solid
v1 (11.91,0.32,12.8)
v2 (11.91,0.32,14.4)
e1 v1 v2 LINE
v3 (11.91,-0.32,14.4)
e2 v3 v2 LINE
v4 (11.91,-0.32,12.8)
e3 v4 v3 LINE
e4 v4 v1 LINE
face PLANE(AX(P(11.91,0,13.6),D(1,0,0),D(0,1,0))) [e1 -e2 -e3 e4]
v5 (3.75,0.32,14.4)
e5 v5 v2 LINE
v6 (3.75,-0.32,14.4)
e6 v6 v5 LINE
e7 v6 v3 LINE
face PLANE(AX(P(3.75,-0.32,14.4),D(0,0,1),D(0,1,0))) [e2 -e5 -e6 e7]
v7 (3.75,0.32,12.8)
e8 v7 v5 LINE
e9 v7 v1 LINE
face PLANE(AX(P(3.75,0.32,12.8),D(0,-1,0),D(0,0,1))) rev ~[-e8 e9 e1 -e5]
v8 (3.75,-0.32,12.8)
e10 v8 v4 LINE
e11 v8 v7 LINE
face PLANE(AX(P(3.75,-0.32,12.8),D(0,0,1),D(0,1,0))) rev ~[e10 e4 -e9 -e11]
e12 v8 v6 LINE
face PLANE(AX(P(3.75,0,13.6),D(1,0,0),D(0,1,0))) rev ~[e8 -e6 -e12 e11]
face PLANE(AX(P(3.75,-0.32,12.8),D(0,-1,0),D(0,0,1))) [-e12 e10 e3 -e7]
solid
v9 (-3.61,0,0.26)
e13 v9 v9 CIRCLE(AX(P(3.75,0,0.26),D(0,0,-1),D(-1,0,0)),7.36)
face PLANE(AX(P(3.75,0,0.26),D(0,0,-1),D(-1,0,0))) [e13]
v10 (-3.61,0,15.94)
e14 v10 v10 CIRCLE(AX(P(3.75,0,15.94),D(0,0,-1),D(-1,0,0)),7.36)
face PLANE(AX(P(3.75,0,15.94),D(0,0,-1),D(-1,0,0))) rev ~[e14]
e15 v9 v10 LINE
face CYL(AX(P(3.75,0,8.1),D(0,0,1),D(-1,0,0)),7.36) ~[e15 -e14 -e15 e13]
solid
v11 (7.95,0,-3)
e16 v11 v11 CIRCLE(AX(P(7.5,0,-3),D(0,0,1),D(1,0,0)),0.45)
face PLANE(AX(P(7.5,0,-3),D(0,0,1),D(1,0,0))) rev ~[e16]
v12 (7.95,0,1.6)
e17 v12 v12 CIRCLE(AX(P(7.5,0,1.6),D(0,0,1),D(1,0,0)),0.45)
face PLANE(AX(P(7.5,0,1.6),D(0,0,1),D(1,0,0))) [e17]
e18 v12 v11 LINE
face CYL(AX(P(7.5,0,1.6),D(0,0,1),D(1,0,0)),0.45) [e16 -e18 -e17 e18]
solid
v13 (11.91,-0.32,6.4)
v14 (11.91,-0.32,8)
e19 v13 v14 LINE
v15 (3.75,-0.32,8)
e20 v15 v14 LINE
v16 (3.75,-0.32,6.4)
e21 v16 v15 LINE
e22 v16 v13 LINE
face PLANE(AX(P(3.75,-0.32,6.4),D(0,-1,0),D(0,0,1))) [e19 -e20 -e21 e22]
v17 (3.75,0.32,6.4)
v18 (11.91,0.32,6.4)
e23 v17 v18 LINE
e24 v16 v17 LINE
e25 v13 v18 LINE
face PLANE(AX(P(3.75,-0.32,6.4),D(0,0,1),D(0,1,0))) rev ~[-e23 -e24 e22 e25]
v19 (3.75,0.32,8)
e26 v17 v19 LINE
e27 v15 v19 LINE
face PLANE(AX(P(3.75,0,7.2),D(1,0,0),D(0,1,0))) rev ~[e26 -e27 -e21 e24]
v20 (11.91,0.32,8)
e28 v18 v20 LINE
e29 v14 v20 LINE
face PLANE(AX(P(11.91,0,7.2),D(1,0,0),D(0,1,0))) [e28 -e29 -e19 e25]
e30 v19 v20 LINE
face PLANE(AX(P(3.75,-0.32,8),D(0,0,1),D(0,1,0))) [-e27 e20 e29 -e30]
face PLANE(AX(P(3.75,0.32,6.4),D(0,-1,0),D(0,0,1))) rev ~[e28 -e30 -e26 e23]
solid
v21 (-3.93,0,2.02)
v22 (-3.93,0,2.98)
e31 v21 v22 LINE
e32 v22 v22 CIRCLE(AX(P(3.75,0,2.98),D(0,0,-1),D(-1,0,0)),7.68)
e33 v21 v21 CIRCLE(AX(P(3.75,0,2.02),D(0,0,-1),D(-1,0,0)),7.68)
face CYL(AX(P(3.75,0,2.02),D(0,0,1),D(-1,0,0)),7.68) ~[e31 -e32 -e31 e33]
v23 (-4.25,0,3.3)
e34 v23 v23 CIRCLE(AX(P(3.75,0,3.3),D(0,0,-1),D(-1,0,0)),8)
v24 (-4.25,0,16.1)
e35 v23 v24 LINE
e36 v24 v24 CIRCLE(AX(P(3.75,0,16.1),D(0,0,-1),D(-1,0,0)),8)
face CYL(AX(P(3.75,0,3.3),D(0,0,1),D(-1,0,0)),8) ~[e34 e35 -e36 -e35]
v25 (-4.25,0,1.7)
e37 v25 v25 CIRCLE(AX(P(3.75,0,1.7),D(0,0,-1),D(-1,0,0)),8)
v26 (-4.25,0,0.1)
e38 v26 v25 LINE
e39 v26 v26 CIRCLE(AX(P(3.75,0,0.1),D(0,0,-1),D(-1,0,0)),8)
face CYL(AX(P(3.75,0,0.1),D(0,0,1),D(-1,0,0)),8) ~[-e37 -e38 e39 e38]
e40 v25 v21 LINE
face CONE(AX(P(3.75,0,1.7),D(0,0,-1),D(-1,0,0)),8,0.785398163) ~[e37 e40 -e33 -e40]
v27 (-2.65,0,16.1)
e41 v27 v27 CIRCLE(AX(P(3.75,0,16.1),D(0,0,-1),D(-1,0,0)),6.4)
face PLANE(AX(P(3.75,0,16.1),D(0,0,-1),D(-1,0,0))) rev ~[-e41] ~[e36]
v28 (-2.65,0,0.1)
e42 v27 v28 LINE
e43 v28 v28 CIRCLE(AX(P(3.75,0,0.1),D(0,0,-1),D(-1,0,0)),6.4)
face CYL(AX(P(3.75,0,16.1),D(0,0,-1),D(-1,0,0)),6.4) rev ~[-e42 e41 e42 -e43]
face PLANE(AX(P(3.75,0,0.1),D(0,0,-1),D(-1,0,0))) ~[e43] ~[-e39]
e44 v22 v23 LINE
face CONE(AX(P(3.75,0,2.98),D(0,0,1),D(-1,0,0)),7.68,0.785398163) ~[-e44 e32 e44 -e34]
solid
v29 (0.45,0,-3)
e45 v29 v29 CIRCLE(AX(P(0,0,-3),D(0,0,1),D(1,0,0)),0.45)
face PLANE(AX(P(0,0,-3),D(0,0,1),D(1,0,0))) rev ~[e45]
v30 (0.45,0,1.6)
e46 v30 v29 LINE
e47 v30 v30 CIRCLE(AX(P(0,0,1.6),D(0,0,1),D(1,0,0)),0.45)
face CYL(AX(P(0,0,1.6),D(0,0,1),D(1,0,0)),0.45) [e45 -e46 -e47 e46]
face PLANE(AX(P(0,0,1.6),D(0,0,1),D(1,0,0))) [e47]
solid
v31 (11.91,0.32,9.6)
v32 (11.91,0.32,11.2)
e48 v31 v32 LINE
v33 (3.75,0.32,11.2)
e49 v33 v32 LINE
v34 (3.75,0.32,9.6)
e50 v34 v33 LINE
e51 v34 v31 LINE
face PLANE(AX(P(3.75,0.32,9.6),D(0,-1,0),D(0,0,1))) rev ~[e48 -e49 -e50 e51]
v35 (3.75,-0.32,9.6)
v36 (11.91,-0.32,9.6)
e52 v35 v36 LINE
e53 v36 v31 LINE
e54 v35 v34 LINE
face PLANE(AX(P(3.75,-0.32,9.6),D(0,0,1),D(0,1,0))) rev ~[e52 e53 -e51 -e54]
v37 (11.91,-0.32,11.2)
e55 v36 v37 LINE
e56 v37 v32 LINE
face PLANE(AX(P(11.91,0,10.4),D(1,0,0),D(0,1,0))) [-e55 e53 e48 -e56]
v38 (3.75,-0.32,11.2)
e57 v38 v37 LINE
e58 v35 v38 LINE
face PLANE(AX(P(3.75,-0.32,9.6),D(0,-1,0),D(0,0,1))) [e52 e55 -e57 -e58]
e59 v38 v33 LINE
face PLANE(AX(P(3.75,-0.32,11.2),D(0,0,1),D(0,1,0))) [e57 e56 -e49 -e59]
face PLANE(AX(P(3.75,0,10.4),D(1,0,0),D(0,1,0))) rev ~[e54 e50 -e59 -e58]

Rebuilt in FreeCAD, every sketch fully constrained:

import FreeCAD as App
import Part
import Sketcher
from FreeCAD import Vector
Q = App.Units.Quantity

doc = App.newDocument("Part")
body = doc.addObject("PartDesign::Body", "Body")

# Sketch on XZ plane
sketch1 = body.newObject("Sketcher::SketchObject", "Sketch")
sketch1.AttachmentSupport = (doc.getObject("XZ_Plane"), [""])
sketch1.MapMode = "FlatFace"
sketch1.addGeometry([
    Part.LineSegment(Vector(-4.25, 1.7, 0), Vector(-4.25, 0.1, 0)),  # 0
    Part.LineSegment(Vector(-4.25, 0.1, 0), Vector(-2.65, 0.1, 0)),  # 1
    Part.LineSegment(Vector(-2.65, 0.1, 0), Vector(-2.65, 16.1, 0)),  # 2
    Part.LineSegment(Vector(-2.65, 16.1, 0), Vector(-4.25, 16.1, 0)),  # 3
    Part.LineSegment(Vector(-4.25, 16.1, 0), Vector(-4.25, 3.3, 0)),  # 4
    Part.LineSegment(Vector(-4.25, 3.3, 0), Vector(-3.93, 2.98, 0)),  # 5
    Part.LineSegment(Vector(-3.93, 2.98, 0), Vector(-3.93, 2.02, 0)),  # 6
    Part.LineSegment(Vector(-3.93, 2.02, 0), Vector(-4.25, 1.7, 0)),  # 7
], False)
sketch1.addGeometry(Part.LineSegment(Vector(3.75, 16.1, 0), Vector(3.75, 0.1, 0)), True)  # axis
sketch1.addConstraint([
    Sketcher.Constraint("Coincident", 0, 2, 1, 1),
    Sketcher.Constraint("Coincident", 1, 2, 2, 1),
    Sketcher.Constraint("Coincident", 2, 2, 3, 1),
    Sketcher.Constraint("Coincident", 3, 2, 4, 1),
    Sketcher.Constraint("Coincident", 4, 2, 5, 1),
    Sketcher.Constraint("Coincident", 5, 2, 6, 1),
    Sketcher.Constraint("Coincident", 6, 2, 7, 1),
    Sketcher.Constraint("Coincident", 7, 2, 0, 1),
    Sketcher.Constraint("Vertical", 0),
    Sketcher.Constraint("Horizontal", 1),
    Sketcher.Constraint("Vertical", 2),
    Sketcher.Constraint("Horizontal", 3),
    Sketcher.Constraint("Vertical", 4),
    Sketcher.Constraint("Vertical", 6),
    Sketcher.Constraint("Vertical", 8),
    Sketcher.Constraint("Perpendicular", 5, 7),
    Sketcher.Constraint("Horizontal", 3, 2, 8, 1),
    Sketcher.Constraint("Horizontal", 1, 2, 8, 2),
    Sketcher.Constraint("Vertical", 0, 2, 3, 2),
    Sketcher.Constraint("Equal", 3, 0),
    Sketcher.Constraint("Equal", 5, 7),
    Sketcher.Constraint("DistanceY", 2, 1, 2, 2, Q("16 mm")),
    Sketcher.Constraint("DistanceX", 1, 1, 1, 2, Q("1.6 mm")),
    Sketcher.Constraint("DistanceY", 4, 2, 4, 1, Q("12.8 mm")),
    Sketcher.Constraint("DistanceX", 3, 2, 8, 1, Q("8 mm")),
    Sketcher.Constraint("DistanceY", 6, 2, 6, 1, Q("0.96 mm")),
    Sketcher.Constraint("DistanceY", -1, 1, 0, 2, Q("0.1 mm")),
    Sketcher.Constraint("DistanceX", 0, 2, -1, 1, Q("4.25 mm")),
])
revolution = body.newObject("PartDesign::Revolution", "Revolution")
revolution.Profile = sketch1
revolution.ReferenceAxis = (sketch1, ["Axis0"])
revolution.Angle = 360
body2 = doc.addObject("PartDesign::Body", "Body001")

# Sketch on XZ plane
sketch2 = body2.newObject("Sketcher::SketchObject", "Sketch001")
sketch2.AttachmentSupport = (doc.getObject("XZ_Plane001"), [""])
sketch2.MapMode = "FlatFace"
sketch2.addGeometry([
    Part.LineSegment(Vector(-4, 16, 0), Vector(-4, 0, 0)),
    Part.LineSegment(Vector(-4, 0, 0), Vector(4, 0, 0)),
    Part.LineSegment(Vector(4, 0, 0), Vector(4, 16, 0)),
    Part.LineSegment(Vector(4, 16, 0), Vector(-4, 16, 0)),
], False)
sketch2.addGeometry(Part.LineSegment(Vector(4, 16, 0), Vector(4, 0, 0)), True)  # axis
sketch2.addConstraint([
    Sketcher.Constraint("Coincident", 0, 2, 1, 1),
    Sketcher.Constraint("Coincident", 1, 2, 2, 1),
    Sketcher.Constraint("Coincident", 2, 2, 3, 1),
    Sketcher.Constraint("Coincident", 3, 2, 0, 1),
    Sketcher.Constraint("Vertical", 0),
    Sketcher.Constraint("Horizontal", 1),
    Sketcher.Constraint("Vertical", 2),
    Sketcher.Constraint("Horizontal", 3),
    Sketcher.Constraint("Vertical", 4),
    Sketcher.Constraint("Coincident", 4, 1, 2, 2),
    Sketcher.Constraint("Horizontal", 0, 2, 4, 2),
    Sketcher.Constraint("DistanceX", 1, 1, 1, 2, Q("7.36 mm")),
    Sketcher.Constraint("DistanceY", 0, 2, 0, 1, Q("15.68 mm")),
    Sketcher.Constraint("DistanceX", 0, 2, -1, 1, Q("3.61 mm")),
    Sketcher.Constraint("DistanceY", -1, 1, 0, 2, Q("0.26 mm")),
])
revolution2 = body2.newObject("PartDesign::Revolution", "Revolution001")
revolution2.Profile = sketch2
revolution2.ReferenceAxis = (sketch2, ["Axis0"])
revolution2.Angle = 360
body3 = doc.addObject("PartDesign::Body", "Body002")
body3.AllowCompound = True

# Sketch on XY plane
sketch3 = body3.newObject("Sketcher::SketchObject", "Sketch002")
sketch3.AttachmentSupport = (doc.getObject("XY_Plane002"), [""])
sketch3.MapMode = "FlatFace"
sketch3.AttachmentOffset = App.Placement(Vector(0, 0, 1.6), App.Rotation())
sketch3.addGeometry([
    Part.Circle(Vector(0, 0, 0), Vector(0, 0, 1), 0.45),
    Part.Circle(Vector(7.5, 0, 0), Vector(0, 0, 1), 0.45),
], False)
sketch3.addConstraint([
    Sketcher.Constraint("Coincident", 0, 3, -1, 1),
    Sketcher.Constraint("Equal", 0, 1),
    Sketcher.Constraint("PointOnObject", 1, 3, -1),
    Sketcher.Constraint("Diameter", 0, Q("0.9 mm")),
    Sketcher.Constraint("DistanceX", -1, 1, 1, 3, Q("7.5 mm")),
])
pad1 = body3.newObject("PartDesign::Pad", "Pad")
pad1.Profile = sketch3
pad1.Length = 4.6
pad1.Reversed = True
body4 = doc.addObject("PartDesign::Body", "Body003")
body4.AllowCompound = True

# Sketch on YZ plane
sketch4 = body4.newObject("Sketcher::SketchObject", "Sketch003")
sketch4.AttachmentSupport = (doc.getObject("YZ_Plane003"), [""])
sketch4.MapMode = "FlatFace"
sketch4.AttachmentOffset = App.Placement(Vector(0, 0, 3.75), App.Rotation())
sketch4.addGeometry([
    Part.LineSegment(Vector(-0.3, 8, 0), Vector(-0.3, 6.4, 0)),  # 0
    Part.LineSegment(Vector(-0.3, 6.4, 0), Vector(0.3, 6.4, 0)),  # 1
    Part.LineSegment(Vector(0.3, 6.4, 0), Vector(0.3, 8, 0)),  # 2
    Part.LineSegment(Vector(0.3, 8, 0), Vector(-0.3, 8, 0)),  # 3
    Part.LineSegment(Vector(-0.3, 11.2, 0), Vector(-0.3, 9.6, 0)),  # 4
    Part.LineSegment(Vector(-0.3, 9.6, 0), Vector(0.3, 9.6, 0)),  # 5
    Part.LineSegment(Vector(0.3, 9.6, 0), Vector(0.3, 11.2, 0)),  # 6
    Part.LineSegment(Vector(0.3, 11.2, 0), Vector(-0.3, 11.2, 0)),  # 7
    Part.LineSegment(Vector(-0.3, 14.4, 0), Vector(-0.3, 12.8, 0)),  # 8
    Part.LineSegment(Vector(-0.3, 12.8, 0), Vector(0.3, 12.8, 0)),  # 9
    Part.LineSegment(Vector(0.3, 12.8, 0), Vector(0.3, 14.4, 0)),  # 10
    Part.LineSegment(Vector(0.3, 14.4, 0), Vector(-0.3, 14.4, 0)),  # 11
], False)
sketch4.addConstraint([
    Sketcher.Constraint("Coincident", 0, 2, 1, 1),
    Sketcher.Constraint("Coincident", 1, 2, 2, 1),
    Sketcher.Constraint("Coincident", 2, 2, 3, 1),
    Sketcher.Constraint("Coincident", 3, 2, 0, 1),
    Sketcher.Constraint("Coincident", 4, 2, 5, 1),
    Sketcher.Constraint("Coincident", 5, 2, 6, 1),
    Sketcher.Constraint("Coincident", 6, 2, 7, 1),
    Sketcher.Constraint("Coincident", 7, 2, 4, 1),
    Sketcher.Constraint("Coincident", 8, 2, 9, 1),
    Sketcher.Constraint("Coincident", 9, 2, 10, 1),
    Sketcher.Constraint("Coincident", 10, 2, 11, 1),
    Sketcher.Constraint("Coincident", 11, 2, 8, 1),
    Sketcher.Constraint("Vertical", 0),
    Sketcher.Constraint("Horizontal", 1),
    Sketcher.Constraint("Vertical", 2),
    Sketcher.Constraint("Horizontal", 3),
    Sketcher.Constraint("Vertical", 4),
    Sketcher.Constraint("Horizontal", 5),
    Sketcher.Constraint("Vertical", 6),
    Sketcher.Constraint("Horizontal", 7),
    Sketcher.Constraint("Vertical", 8),
    Sketcher.Constraint("Horizontal", 9),
    Sketcher.Constraint("Vertical", 10),
    Sketcher.Constraint("Horizontal", 11),
    Sketcher.Constraint("Vertical", 3, 2, 4, 2),
    Sketcher.Constraint("Vertical", 2, 2, 5, 2),
    Sketcher.Constraint("Vertical", 7, 2, 8, 2),
    Sketcher.Constraint("Vertical", 6, 2, 9, 2),
    Sketcher.Constraint("Equal", 2, 4),
    Sketcher.Constraint("Equal", 6, 8),
    Sketcher.Constraint("DistanceY", 0, 2, 0, 1, Q("1.6 mm")),
    Sketcher.Constraint("DistanceY", -1, 1, 2, 2, Q("8 mm")),
    Sketcher.Constraint("DistanceX", 1, 1, 1, 2, Q("0.64 mm")),
    Sketcher.Constraint("DistanceY", -1, 1, 4, 2, Q("9.6 mm")),
    Sketcher.Constraint("DistanceY", -1, 1, 8, 2, Q("12.8 mm")),
    Sketcher.Constraint("DistanceX", 0, 2, -1, 1, Q("0.32 mm")),
])
pad2 = body4.newObject("PartDesign::Pad", "Pad001")
pad2.Profile = sketch4
pad2.Length = 8.16

doc.recompute()
